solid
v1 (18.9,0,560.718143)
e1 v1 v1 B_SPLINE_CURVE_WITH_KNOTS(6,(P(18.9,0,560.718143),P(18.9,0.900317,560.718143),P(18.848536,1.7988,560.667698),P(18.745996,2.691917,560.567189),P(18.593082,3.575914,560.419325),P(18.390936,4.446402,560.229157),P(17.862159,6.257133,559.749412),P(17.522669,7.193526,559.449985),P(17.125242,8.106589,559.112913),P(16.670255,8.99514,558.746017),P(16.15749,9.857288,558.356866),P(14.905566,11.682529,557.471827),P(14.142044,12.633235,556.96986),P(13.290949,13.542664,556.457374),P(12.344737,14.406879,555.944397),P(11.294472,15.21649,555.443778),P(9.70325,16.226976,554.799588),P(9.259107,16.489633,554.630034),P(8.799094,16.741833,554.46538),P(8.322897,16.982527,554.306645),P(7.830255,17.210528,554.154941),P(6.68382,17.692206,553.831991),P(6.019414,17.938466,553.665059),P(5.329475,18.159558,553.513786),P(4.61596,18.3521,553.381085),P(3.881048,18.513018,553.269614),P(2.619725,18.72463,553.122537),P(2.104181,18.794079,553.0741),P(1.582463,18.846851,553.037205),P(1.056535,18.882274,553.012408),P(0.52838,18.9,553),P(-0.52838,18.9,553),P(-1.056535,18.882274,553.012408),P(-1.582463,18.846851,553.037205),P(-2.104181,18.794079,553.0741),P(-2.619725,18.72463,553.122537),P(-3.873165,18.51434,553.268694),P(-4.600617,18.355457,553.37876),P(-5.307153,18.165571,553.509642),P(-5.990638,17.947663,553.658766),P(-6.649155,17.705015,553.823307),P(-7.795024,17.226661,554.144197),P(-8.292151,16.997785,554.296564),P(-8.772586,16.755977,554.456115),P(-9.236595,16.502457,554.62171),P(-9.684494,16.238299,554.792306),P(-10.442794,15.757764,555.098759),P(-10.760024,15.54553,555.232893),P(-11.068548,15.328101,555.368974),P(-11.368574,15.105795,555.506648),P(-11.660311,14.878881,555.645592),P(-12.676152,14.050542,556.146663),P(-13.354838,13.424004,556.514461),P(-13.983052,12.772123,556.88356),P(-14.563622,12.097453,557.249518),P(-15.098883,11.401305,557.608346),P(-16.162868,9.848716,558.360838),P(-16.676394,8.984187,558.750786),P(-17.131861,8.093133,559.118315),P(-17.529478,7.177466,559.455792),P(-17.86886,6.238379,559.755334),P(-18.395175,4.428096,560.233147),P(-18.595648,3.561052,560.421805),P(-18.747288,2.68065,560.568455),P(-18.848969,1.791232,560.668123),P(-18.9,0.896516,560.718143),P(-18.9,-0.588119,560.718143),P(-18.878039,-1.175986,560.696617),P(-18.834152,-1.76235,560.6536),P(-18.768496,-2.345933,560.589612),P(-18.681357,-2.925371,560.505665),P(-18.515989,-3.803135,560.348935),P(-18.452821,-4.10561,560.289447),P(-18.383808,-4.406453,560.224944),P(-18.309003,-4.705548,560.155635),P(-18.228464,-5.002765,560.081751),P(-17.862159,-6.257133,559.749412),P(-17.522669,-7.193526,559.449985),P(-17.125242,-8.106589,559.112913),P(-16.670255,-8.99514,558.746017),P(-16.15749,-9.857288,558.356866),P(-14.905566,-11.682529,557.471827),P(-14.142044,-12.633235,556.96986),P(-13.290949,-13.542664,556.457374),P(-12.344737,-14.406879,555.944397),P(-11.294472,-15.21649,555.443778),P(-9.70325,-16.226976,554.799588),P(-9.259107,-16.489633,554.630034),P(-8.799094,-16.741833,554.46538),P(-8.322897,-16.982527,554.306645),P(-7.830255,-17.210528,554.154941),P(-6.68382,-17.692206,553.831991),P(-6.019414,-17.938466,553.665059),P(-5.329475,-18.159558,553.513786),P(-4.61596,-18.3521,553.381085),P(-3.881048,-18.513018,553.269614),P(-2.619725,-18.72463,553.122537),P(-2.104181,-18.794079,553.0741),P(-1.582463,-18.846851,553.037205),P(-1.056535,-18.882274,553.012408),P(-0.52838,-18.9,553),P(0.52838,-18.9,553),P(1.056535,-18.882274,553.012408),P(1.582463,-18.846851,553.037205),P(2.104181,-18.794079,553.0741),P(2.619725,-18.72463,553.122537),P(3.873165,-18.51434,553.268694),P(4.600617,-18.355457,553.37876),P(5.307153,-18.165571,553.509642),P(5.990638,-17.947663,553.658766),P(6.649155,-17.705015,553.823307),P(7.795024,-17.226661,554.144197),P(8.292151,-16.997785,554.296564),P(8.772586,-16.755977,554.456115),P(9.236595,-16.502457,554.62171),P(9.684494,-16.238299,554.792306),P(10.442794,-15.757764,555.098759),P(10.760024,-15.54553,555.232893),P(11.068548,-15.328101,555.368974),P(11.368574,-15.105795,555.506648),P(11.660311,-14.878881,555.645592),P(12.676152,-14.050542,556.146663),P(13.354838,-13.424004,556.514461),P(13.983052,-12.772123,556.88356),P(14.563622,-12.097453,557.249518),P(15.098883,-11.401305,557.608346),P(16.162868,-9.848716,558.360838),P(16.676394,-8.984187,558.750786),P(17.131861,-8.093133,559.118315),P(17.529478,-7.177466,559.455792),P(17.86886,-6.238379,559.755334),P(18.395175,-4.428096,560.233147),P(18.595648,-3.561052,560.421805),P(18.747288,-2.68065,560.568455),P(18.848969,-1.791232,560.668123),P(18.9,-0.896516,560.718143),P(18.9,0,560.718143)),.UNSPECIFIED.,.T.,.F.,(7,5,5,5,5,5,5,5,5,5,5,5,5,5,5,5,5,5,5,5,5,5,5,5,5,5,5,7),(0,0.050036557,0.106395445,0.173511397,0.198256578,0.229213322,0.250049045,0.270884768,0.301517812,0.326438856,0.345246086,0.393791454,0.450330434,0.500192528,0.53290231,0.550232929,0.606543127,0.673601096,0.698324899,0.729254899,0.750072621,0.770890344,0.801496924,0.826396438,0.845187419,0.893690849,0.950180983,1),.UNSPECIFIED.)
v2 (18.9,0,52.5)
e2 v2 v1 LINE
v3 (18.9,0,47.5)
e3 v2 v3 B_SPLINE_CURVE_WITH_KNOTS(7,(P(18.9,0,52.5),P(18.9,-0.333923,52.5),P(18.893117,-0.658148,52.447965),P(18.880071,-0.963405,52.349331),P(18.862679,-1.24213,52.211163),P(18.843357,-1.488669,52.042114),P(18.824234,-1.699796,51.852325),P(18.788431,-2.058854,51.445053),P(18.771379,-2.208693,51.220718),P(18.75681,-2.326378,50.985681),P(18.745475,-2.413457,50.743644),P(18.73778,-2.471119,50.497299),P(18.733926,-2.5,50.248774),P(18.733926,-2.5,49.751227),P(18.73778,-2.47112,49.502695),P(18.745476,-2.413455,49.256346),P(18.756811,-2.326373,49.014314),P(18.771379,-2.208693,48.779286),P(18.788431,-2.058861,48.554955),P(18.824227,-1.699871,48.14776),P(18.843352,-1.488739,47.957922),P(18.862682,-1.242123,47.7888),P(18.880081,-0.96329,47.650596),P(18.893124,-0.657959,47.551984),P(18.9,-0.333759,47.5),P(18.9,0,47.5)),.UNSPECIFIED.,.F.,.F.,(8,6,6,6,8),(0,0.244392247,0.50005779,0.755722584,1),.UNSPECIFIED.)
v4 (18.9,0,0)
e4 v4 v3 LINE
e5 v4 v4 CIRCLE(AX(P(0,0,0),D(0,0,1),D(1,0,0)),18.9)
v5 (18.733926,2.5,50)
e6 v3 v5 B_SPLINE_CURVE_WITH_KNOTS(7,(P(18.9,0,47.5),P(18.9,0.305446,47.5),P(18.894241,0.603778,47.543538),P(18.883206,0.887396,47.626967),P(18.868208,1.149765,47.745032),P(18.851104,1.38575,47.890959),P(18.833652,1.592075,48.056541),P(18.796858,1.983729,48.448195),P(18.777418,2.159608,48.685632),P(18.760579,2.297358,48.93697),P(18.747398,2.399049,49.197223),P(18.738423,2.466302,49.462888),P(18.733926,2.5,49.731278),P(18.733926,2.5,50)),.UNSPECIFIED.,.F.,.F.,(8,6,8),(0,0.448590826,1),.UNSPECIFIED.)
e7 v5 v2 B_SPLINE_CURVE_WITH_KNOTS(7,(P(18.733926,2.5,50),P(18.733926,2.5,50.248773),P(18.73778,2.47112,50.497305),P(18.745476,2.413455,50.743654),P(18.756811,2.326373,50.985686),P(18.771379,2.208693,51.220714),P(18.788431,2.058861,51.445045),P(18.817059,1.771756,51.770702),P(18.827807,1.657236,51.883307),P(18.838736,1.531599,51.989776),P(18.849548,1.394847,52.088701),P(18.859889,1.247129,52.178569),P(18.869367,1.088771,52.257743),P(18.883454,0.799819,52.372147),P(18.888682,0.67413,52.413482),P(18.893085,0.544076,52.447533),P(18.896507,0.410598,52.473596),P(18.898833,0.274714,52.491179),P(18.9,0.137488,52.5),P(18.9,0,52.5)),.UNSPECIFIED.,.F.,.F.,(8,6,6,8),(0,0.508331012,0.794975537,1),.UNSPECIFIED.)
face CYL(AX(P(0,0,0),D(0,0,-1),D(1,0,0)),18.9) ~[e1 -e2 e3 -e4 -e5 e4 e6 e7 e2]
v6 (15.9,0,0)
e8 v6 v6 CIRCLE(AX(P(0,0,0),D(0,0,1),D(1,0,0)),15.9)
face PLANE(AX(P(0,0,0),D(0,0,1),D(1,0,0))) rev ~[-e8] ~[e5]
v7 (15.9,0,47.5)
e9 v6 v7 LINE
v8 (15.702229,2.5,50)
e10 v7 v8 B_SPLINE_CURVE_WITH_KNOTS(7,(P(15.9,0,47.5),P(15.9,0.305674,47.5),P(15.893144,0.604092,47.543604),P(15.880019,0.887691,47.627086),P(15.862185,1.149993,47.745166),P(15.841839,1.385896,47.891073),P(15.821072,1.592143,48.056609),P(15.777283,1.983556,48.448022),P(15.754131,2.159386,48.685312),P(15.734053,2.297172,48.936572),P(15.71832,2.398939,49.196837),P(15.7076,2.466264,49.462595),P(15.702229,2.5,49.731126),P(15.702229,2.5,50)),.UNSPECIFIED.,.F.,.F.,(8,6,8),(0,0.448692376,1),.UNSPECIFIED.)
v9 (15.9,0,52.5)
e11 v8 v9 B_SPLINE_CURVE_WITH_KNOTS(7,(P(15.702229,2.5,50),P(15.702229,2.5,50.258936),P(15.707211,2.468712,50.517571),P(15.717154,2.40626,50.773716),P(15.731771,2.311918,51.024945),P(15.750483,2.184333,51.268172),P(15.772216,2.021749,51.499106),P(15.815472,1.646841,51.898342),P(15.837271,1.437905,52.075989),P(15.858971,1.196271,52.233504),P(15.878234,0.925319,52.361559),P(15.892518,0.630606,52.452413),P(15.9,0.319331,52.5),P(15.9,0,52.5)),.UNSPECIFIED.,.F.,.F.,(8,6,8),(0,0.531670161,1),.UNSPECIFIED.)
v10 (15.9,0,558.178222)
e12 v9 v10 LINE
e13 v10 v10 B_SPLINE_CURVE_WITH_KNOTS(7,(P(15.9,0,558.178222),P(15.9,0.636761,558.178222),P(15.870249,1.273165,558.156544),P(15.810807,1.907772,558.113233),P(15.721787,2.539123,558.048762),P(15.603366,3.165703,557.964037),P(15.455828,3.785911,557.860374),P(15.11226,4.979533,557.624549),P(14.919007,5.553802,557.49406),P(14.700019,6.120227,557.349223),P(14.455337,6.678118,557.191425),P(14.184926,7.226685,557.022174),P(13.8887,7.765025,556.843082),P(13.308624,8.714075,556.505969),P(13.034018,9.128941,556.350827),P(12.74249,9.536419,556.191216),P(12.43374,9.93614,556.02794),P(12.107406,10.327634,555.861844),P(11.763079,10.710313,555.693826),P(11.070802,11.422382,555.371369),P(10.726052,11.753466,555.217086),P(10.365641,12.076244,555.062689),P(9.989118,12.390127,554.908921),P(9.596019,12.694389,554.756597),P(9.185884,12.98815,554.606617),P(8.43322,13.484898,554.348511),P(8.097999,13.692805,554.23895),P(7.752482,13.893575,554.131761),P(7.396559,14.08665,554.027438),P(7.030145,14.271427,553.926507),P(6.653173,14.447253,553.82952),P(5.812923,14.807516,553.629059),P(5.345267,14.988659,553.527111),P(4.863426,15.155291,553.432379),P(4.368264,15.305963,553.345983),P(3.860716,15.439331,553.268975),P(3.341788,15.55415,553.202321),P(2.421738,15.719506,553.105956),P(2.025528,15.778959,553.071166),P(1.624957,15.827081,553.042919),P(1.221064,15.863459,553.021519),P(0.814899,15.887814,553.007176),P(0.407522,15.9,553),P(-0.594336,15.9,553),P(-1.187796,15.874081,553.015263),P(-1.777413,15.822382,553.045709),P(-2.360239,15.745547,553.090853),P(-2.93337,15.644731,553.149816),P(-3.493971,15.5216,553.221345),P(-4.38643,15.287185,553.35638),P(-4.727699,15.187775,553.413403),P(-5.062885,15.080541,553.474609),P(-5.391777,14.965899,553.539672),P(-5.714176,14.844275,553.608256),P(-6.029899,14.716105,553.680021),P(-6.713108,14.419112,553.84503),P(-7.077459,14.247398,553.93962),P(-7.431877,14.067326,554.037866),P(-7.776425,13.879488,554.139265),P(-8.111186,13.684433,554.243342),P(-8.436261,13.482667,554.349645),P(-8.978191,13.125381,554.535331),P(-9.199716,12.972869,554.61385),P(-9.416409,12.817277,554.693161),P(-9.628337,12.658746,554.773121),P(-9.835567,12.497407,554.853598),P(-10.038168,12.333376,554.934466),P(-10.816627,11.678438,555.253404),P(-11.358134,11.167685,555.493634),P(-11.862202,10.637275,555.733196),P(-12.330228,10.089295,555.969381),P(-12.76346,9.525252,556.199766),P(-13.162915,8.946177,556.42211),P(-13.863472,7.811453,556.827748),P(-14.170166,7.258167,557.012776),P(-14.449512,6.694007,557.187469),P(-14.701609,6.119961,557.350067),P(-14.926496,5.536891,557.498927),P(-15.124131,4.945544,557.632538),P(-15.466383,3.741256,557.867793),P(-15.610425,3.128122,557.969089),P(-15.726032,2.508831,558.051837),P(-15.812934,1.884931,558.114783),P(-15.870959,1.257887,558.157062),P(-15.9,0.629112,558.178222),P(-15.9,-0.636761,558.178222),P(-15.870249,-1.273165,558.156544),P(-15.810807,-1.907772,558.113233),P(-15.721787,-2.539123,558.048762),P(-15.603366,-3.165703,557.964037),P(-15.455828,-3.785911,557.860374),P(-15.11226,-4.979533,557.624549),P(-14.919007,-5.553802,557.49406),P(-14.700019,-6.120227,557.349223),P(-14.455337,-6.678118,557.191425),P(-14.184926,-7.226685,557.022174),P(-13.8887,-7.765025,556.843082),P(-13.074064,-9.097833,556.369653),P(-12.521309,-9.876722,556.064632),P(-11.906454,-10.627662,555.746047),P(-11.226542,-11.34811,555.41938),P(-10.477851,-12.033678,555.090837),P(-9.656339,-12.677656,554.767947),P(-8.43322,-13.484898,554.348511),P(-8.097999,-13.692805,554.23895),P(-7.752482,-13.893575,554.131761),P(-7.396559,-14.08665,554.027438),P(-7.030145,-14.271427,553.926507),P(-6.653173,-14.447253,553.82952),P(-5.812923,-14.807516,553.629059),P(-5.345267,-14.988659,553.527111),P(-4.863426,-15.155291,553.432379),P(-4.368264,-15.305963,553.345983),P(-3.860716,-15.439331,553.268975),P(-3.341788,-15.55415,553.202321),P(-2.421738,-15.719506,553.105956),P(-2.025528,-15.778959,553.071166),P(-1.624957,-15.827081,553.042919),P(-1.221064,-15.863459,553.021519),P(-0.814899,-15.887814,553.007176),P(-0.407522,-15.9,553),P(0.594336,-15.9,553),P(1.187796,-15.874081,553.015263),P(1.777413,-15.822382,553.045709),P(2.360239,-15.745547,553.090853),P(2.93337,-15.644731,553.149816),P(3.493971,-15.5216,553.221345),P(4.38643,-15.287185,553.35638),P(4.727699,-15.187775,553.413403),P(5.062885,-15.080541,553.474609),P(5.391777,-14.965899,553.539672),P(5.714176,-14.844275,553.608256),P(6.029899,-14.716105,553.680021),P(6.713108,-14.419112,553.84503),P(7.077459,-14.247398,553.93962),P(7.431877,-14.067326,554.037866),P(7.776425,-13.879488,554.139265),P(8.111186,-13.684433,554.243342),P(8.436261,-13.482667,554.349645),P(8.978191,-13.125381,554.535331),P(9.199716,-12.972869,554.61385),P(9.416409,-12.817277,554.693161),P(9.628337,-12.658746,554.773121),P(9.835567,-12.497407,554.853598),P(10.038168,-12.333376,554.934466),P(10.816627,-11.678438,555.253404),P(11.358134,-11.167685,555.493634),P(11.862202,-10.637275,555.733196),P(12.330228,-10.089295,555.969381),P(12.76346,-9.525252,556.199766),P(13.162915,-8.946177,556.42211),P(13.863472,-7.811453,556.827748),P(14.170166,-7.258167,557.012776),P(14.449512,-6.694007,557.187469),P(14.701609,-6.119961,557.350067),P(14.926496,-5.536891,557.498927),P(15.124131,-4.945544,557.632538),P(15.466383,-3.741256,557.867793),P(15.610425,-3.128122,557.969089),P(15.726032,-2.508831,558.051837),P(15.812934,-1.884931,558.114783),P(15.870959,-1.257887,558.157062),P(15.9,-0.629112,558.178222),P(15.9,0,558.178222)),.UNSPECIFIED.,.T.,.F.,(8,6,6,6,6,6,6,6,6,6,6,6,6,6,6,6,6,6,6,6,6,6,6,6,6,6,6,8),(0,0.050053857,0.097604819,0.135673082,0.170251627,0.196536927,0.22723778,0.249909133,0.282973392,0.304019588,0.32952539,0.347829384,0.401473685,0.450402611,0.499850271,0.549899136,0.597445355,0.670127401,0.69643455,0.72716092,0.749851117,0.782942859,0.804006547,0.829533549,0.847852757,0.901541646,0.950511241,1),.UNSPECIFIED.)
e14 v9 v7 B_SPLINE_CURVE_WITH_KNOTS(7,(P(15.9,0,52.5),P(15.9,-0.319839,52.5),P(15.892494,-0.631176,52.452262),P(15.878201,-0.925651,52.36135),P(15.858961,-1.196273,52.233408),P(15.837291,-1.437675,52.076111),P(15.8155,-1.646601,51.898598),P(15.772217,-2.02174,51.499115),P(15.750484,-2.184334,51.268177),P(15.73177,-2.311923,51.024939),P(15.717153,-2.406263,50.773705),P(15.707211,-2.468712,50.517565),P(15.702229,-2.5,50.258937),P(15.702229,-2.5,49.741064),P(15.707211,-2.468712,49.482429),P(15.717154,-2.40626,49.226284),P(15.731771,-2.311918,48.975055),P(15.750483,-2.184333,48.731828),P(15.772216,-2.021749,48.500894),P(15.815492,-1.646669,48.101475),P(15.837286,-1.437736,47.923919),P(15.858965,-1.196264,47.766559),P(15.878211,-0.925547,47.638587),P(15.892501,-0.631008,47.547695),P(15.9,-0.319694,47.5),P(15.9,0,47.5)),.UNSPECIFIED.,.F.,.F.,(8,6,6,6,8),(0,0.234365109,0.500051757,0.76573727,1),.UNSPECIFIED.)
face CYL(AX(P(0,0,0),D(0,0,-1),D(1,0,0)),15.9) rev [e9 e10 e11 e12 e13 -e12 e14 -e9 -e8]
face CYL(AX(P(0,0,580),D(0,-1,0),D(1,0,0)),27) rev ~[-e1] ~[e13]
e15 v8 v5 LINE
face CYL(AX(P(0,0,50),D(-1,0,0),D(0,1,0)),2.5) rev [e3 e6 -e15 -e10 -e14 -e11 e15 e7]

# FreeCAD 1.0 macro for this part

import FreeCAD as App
import Part
import Sketcher

V = App.Vector

doc = App.newDocument("Part")
params = doc.addObject("Spreadsheet::Sheet", "Params")
for row, (alias, value) in enumerate([
    ("sketch1_diameter", "37.8 mm"),
    ("sketch1_diameter2", "31.8 mm"),
    ("pad1_length", "580 mm"),
    ("sketch2_diameter", "54 mm"),
    ("pocket1_length", "100 mm"),
    ("sketch3_diameter", "5 mm"),
], start=1):
    params.set(f"A{row}", alias)
    params.set(f"B{row}", "=" + value)
    params.setAlias(f"B{row}", alias)

body = doc.addObject("PartDesign::Body", "Body")

sketch1 = body.newObject("Sketcher::SketchObject", "Sketch")
sketch1.AttachmentSupport = (doc.getObject("XY_Plane"), [""])
sketch1.MapMode = "FlatFace"
sketch1.addGeometry([
    Part.Circle(V(0, 0, 0), V(0, 0, 1), 19),
    Part.Circle(V(0, 0, 0), V(0, 0, 1), 16),
], False)
sketch1.addConstraint([
    Sketcher.Constraint("Coincident", 0, 3, -1, 1),
    Sketcher.Constraint("Coincident", 1, 3, -1, 1),
    Sketcher.Constraint("Diameter", 0, 37.8),
    Sketcher.Constraint("Diameter", 1, 31.8),
])
sketch1.setExpression("Constraints[2]", "Params.sketch1_diameter")
sketch1.setExpression("Constraints[3]", "Params.sketch1_diameter2")
pad1 = body.newObject("PartDesign::Pad", "Pad")
pad1.Profile = sketch1
pad1.setExpression("Length", "Params.pad1_length")

sketch2 = body.newObject("Sketcher::SketchObject", "Sketch001")
sketch2.AttachmentSupport = (doc.getObject("XZ_Plane"), [""])
sketch2.MapMode = "FlatFace"
sketch2.addGeometry(Part.Circle(V(0, 580, 0), V(0, 0, 1), 27), False)
sketch2.addConstraint([
    Sketcher.Constraint("PointOnObject", 0, 3, -2),
    Sketcher.Constraint("Diameter", 0, 54.0),
    Sketcher.Constraint("DistanceY", -1, 1, 0, 3, 580.0),
])
sketch2.setExpression("Constraints[1]", "Params.sketch2_diameter")
pocket1 = body.newObject("PartDesign::Pocket", "Pocket")
pocket1.Profile = sketch2
pocket1.setExpression("Length", "Params.pocket1_length")
pocket1.Midplane = True

sketch3 = body.newObject("Sketcher::SketchObject", "Sketch002")
sketch3.AttachmentSupport = (doc.getObject("YZ_Plane"), [""])
sketch3.MapMode = "FlatFace"
sketch3.addGeometry(Part.Circle(V(0, 50, 0), V(0, 0, 1), 2.5), False)
sketch3.addConstraint([
    Sketcher.Constraint("PointOnObject", 0, 3, -2),
    Sketcher.Constraint("Diameter", 0, 5.0),
    Sketcher.Constraint("DistanceY", -1, 1, 0, 3, 50.0),
])
sketch3.setExpression("Constraints[1]", "Params.sketch3_diameter")
pocket2 = body.newObject("PartDesign::Pocket", "Pocket001")
pocket2.Profile = sketch3
pocket2.Type = "ThroughAll"
pocket2.Reversed = True

doc.recompute()
